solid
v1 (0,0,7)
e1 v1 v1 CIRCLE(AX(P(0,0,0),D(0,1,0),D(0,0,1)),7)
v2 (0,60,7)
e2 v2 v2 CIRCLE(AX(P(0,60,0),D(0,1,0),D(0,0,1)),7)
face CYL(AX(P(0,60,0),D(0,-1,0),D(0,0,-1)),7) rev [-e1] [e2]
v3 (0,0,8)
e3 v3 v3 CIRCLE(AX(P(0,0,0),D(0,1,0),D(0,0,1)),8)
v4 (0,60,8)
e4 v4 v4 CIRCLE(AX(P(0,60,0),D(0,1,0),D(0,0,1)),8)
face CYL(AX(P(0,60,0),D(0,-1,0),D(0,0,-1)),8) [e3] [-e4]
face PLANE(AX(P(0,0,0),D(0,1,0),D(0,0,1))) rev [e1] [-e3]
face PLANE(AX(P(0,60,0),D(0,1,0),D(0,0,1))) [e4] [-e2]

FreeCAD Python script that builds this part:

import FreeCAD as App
import Part
import Sketcher
from FreeCAD import Vector

doc = App.newDocument("Part")
body = doc.addObject("PartDesign::Body", "Body")

sketch1 = body.newObject("Sketcher::SketchObject", "Sketch")
sketch1.AttachmentSupport = (doc.getObject("XZ_Plane"), [""])
sketch1.MapMode = "FlatFace"
sketch1.addGeometry([
    Part.Circle(Vector(0, 0, 0), Vector(0, 0, 1), 8),
    Part.Circle(Vector(0, 0, 0), Vector(0, 0, 1), 7),
], False)
sketch1.addConstraint([
    Sketcher.Constraint("Coincident", 0, 3, -1, 1),
    Sketcher.Constraint("Coincident", 1, 3, -1, 1),
    Sketcher.Constraint("Diameter", 0, 16.0),
    Sketcher.Constraint("Diameter", 1, 14.0),
])
pad1 = body.newObject("PartDesign::Pad", "Pad")
pad1.Profile = sketch1
pad1.Length = 60
pad1.Reversed = True

doc.recompute()
